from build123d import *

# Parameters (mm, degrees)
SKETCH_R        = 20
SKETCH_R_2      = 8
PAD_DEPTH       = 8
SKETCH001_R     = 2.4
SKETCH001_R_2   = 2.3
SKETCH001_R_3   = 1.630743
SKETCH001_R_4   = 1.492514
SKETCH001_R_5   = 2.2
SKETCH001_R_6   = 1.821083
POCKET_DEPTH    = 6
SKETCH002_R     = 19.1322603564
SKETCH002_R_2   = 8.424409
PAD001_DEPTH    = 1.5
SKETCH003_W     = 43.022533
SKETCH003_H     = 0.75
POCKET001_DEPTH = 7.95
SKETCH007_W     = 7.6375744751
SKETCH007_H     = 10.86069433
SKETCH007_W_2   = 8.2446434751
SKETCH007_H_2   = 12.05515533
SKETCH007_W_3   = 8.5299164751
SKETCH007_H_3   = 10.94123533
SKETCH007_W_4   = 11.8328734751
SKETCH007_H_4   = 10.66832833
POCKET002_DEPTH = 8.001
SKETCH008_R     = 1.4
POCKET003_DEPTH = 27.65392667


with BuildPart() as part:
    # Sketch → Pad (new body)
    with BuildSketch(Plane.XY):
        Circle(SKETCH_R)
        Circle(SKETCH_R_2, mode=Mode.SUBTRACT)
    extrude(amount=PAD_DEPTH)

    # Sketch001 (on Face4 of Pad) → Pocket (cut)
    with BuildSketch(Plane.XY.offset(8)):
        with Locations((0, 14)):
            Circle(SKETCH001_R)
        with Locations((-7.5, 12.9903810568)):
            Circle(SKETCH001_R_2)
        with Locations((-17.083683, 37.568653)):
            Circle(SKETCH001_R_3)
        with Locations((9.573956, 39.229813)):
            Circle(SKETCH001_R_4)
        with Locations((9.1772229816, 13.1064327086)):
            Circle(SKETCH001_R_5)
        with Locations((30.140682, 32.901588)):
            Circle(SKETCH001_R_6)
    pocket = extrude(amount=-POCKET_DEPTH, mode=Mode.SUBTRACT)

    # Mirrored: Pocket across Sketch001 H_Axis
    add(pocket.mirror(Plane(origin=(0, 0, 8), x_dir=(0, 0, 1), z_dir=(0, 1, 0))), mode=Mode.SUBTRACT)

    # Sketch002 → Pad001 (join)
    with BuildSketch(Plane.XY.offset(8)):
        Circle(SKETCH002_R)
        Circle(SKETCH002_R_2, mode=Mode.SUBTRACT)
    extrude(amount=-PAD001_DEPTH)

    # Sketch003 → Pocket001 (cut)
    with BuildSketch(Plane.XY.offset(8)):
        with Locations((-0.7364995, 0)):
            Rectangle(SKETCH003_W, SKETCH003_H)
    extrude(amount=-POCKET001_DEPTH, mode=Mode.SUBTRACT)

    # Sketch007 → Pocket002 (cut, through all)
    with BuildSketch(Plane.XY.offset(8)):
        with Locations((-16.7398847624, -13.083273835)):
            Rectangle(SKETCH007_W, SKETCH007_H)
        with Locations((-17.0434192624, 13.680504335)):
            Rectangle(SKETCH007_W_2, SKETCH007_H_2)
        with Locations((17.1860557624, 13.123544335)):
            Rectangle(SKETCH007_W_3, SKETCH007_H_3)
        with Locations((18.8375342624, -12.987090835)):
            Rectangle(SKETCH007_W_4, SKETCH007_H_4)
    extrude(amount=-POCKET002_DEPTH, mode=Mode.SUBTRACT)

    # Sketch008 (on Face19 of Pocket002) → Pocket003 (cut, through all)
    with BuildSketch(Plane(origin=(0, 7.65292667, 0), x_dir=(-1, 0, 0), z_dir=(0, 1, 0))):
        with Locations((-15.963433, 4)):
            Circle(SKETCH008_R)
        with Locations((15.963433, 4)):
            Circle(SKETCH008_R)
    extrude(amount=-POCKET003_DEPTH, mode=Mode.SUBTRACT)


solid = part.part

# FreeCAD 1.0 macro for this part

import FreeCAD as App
import Part
import Sketcher

V = App.Vector
Q = App.Units.Quantity


def add_polygon(sketch, points):
    """Adds a closed chain of lines whose ends are joined by coincident constraints."""
    first, n = sketch.GeometryCount, len(points)
    for a, b in zip(points, points[1:] + points[:1]):
        sketch.addGeometry(Part.LineSegment(App.Vector(*a, 0), App.Vector(*b, 0)), False)
    for i in range(n):
        sketch.addConstraint(Sketcher.Constraint("Coincident", first + i, 2, first + (i + 1) % n, 1))

doc = App.newDocument("Part")
body = doc.addObject("PartDesign::Body", "Body")

# Sketch on XY plane
sketch1 = body.newObject("Sketcher::SketchObject", "Sketch")
sketch1.AttachmentSupport = (doc.getObject("XY_Plane"), [""])
sketch1.MapMode = "FlatFace"
sketch1.addGeometry([
    Part.Circle(V(0, 0, 0), V(0, 0, 1), 20),
    Part.Circle(V(0, 0, 0), V(0, 0, 1), 8),
], False)
sketch1.addConstraint([
    Sketcher.Constraint("Coincident", 0, 3, -1, 1),
    Sketcher.Constraint("Coincident", 1, 3, -1, 1),
    Sketcher.Constraint("Diameter", 0, Q("40 mm")),
    Sketcher.Constraint("Diameter", 1, Q("16 mm")),
])
pad1 = body.newObject("PartDesign::Pad", "Pad")
pad1.Profile = sketch1
pad1.Length = 8

# Sketch on XY plane
sketch2 = body.newObject("Sketcher::SketchObject", "Sketch001")
sketch2.AttachmentSupport = (doc.getObject("XY_Plane"), [""])
sketch2.MapMode = "FlatFace"
sketch2.AttachmentOffset = App.Placement(V(0, 0, 8), App.Rotation())
sketch2.addGeometry([
    Part.Circle(V(0, 14, 0), V(0, 0, 1), 2.4),  # 0
    Part.Circle(V(-7.5, 13, 0), V(0, 0, 1), 2.3),  # 1
    Part.Circle(V(-17.1, 37.6, 0), V(0, 0, 1), 1.6),  # 2
    Part.Circle(V(9.6, 39.2, 0), V(0, 0, 1), 1.5),  # 3
    Part.Circle(V(9.2, 13.1, 0), V(0, 0, 1), 2.2),  # 4
    Part.Circle(V(30.1, 32.9, 0), V(0, 0, 1), 1.8),  # 5
], False)
sketch2.addConstraint([
    Sketcher.Constraint("PointOnObject", 0, 3, -2),
    Sketcher.Constraint("Diameter", 0, Q("4.8 mm")),
    Sketcher.Constraint("Diameter", 1, Q("4.6 mm")),
    Sketcher.Constraint("Diameter", 4, Q("4.4 mm")),
    Sketcher.Constraint("DistanceY", -1, 1, 0, 3, Q("14 mm")),
    Sketcher.Constraint("DistanceX", 1, 3, -1, 1, Q("7.5 mm")),
    Sketcher.Constraint("Diameter", 2, Q("3.261486 mm")),
    Sketcher.Constraint("Diameter", 3, Q("2.985028 mm")),
    Sketcher.Constraint("Diameter", 5, Q("3.642166 mm")),
    Sketcher.Constraint("DistanceY", -1, 1, 1, 3, Q("12.990381 mm")),
    Sketcher.Constraint("DistanceY", 1, 3, 2, 3, Q("24.578272 mm")),
    Sketcher.Constraint("DistanceX", 2, 3, 3, 3, Q("26.657639 mm")),
    Sketcher.Constraint("DistanceY", 2, 3, 3, 3, Q("1.66116 mm")),
    Sketcher.Constraint("DistanceY", 1, 3, 4, 3, Q("0.116052 mm")),
    Sketcher.Constraint("DistanceX", 4, 3, 5, 3, Q("20.963459 mm")),
    Sketcher.Constraint("DistanceX", 1, 3, 5, 3, Q("37.640682 mm")),
    Sketcher.Constraint("DistanceX", 2, 3, -1, 1, Q("17.083683 mm")),
    Sketcher.Constraint("DistanceY", -1, 1, 5, 3, Q("32.901588 mm")),
])
pocket1 = body.newObject("PartDesign::Pocket", "Pocket")
pocket1.Profile = sketch2
pocket1.Length = 6
doc.recompute()

mirrored = body.newObject("PartDesign::Mirrored", "Mirrored")
mirrored.Originals = [pocket1]
mirrored.MirrorPlane = (doc.getObject("XZ_Plane"), [""])
body.Tip = mirrored

# Sketch on XY plane
sketch3 = body.newObject("Sketcher::SketchObject", "Sketch002")
sketch3.AttachmentSupport = (doc.getObject("XY_Plane"), [""])
sketch3.MapMode = "FlatFace"
sketch3.AttachmentOffset = App.Placement(V(0, 0, 8), App.Rotation())
sketch3.addGeometry([
    Part.Circle(V(0, 0, 0), V(0, 0, 1), 19),
    Part.Circle(V(0, 0, 0), V(0, 0, 1), 8),
], False)
sketch3.addConstraint([
    Sketcher.Constraint("Coincident", 0, 3, -1, 1),
    Sketcher.Constraint("Coincident", 1, 3, -1, 1),
    Sketcher.Constraint("Diameter", 0, Q("38.264521 mm")),
    Sketcher.Constraint("Diameter", 1, Q("16.848818 mm")),
])
pad2 = body.newObject("PartDesign::Pad", "Pad001")
pad2.Profile = sketch3
pad2.Length = 1.5
pad2.Reversed = True

# Sketch on XY plane
sketch4 = body.newObject("Sketcher::SketchObject", "Sketch003")
sketch4.AttachmentSupport = (doc.getObject("XY_Plane"), [""])
sketch4.MapMode = "FlatFace"
sketch4.AttachmentOffset = App.Placement(V(0, 0, 8), App.Rotation())
add_polygon(sketch4, [(-22.2, 0.4), (-22.2, -0.4), (20.8, -0.4), (20.8, 0.4)])  # lines 0-3
sketch4.addConstraint([
    Sketcher.Constraint("Vertical", 0),
    Sketcher.Constraint("Horizontal", 1),
    Sketcher.Constraint("Vertical", 2),
    Sketcher.Constraint("Horizontal", 3),
    Sketcher.Constraint("DistanceY", 0, 2, 0, 1, Q("0.75 mm")),
    Sketcher.Constraint("DistanceY", 0, 2, -1, 1, Q("0.375 mm")),
    Sketcher.Constraint("DistanceX", 1, 1, 1, 2, Q("43.022533 mm")),
    Sketcher.Constraint("DistanceX", 0, 2, -1, 1, Q("22.247766 mm")),
])
pocket2 = body.newObject("PartDesign::Pocket", "Pocket001")
pocket2.Profile = sketch4
pocket2.Length = 7.95

# Sketch on XY plane
sketch5 = body.newObject("Sketcher::SketchObject", "Sketch004")
sketch5.AttachmentSupport = (doc.getObject("XY_Plane"), [""])
sketch5.MapMode = "FlatFace"
sketch5.AttachmentOffset = App.Placement(V(0, 0, 8), App.Rotation())
add_polygon(sketch5, [(-21, -8), (-21, -19), (-13, -19), (-13, -8)])  # lines 0-3
add_polygon(sketch5, [(-21, 20), (-21, 8), (-13, 8), (-13, 20)])  # lines 4-7
add_polygon(sketch5, [(13, 19), (13, 8), (21, 8), (21, 19)])  # lines 8-11
add_polygon(sketch5, [(13, -8), (13, -18), (25, -18), (25, -8)])  # lines 12-15
sketch5.addConstraint([
    Sketcher.Constraint("Vertical", 0),
    Sketcher.Constraint("Horizontal", 1),
    Sketcher.Constraint("Vertical", 2),
    Sketcher.Constraint("Horizontal", 3),
    Sketcher.Constraint("Vertical", 4),
    Sketcher.Constraint("Horizontal", 5),
    Sketcher.Constraint("Vertical", 6),
    Sketcher.Constraint("Horizontal", 7),
    Sketcher.Constraint("Vertical", 8),
    Sketcher.Constraint("Horizontal", 9),
    Sketcher.Constraint("Vertical", 10),
    Sketcher.Constraint("Horizontal", 11),
    Sketcher.Constraint("Vertical", 12),
    Sketcher.Constraint("Horizontal", 13),
    Sketcher.Constraint("Vertical", 14),
    Sketcher.Constraint("Horizontal", 15),
    Sketcher.Constraint("Symmetric", 2, 2, 8, 2, -1, 1),
    Sketcher.Constraint("Symmetric", 5, 2, 15, 2, -1, 1),
    Sketcher.Constraint("Symmetric", 5, 2, 8, 2, -2),
    Sketcher.Constraint("DistanceY", 12, 2, 12, 1, Q("10.668328 mm")),
    Sketcher.Constraint("DistanceX", 1, 1, 1, 2, Q("7.637574 mm")),
    Sketcher.Constraint("DistanceX", 5, 1, 5, 2, Q("8.244643 mm")),
    Sketcher.Constraint("DistanceX", 9, 1, 9, 2, Q("8.529916 mm")),
    Sketcher.Constraint("DistanceX", 13, 1, 13, 2, Q("11.832873 mm")),
    Sketcher.Constraint("DistanceY", 0, 2, 0, 1, Q("10.860694 mm")),
    Sketcher.Constraint("DistanceY", 4, 2, 4, 1, Q("12.055155 mm")),
    Sketcher.Constraint("DistanceY", 8, 2, 8, 1, Q("10.941235 mm")),
    Sketcher.Constraint("DistanceY", 0, 2, -1, 1, Q("18.513621 mm")),
    Sketcher.Constraint("DistanceX", 4, 2, -1, 1, Q("21.165741 mm")),
])
pocket3 = body.newObject("PartDesign::Pocket", "Pocket002")
pocket3.Profile = sketch5
pocket3.Type = "ThroughAll"

# Sketch on XZ plane
sketch6 = body.newObject("Sketcher::SketchObject", "Sketch005")
sketch6.AttachmentSupport = (doc.getObject("XZ_Plane"), [""])
sketch6.MapMode = "FlatFace"
sketch6.AttachmentOffset = App.Placement(V(0, 0, -7.652927), App.Rotation())
sketch6.addGeometry([
    Part.Circle(V(16, 4, 0), V(0, 0, 1), 1.4),
    Part.Circle(V(-16, 4, 0), V(0, 0, 1), 1.4),
], False)
sketch6.addConstraint([
    Sketcher.Constraint("Equal", 0, 1),
    Sketcher.Constraint("Symmetric", 0, 3, 1, 3, -2),
    Sketcher.Constraint("Diameter", 0, Q("2.8 mm")),
    Sketcher.Constraint("DistanceY", -1, 1, 0, 3, Q("4 mm")),
    Sketcher.Constraint("DistanceX", -1, 1, 0, 3, Q("15.963433 mm")),
])
pocket4 = body.newObject("PartDesign::Pocket", "Pocket003")
pocket4.Profile = sketch6
pocket4.Type = "ThroughAll"
pocket4.Reversed = True

doc.recompute()
